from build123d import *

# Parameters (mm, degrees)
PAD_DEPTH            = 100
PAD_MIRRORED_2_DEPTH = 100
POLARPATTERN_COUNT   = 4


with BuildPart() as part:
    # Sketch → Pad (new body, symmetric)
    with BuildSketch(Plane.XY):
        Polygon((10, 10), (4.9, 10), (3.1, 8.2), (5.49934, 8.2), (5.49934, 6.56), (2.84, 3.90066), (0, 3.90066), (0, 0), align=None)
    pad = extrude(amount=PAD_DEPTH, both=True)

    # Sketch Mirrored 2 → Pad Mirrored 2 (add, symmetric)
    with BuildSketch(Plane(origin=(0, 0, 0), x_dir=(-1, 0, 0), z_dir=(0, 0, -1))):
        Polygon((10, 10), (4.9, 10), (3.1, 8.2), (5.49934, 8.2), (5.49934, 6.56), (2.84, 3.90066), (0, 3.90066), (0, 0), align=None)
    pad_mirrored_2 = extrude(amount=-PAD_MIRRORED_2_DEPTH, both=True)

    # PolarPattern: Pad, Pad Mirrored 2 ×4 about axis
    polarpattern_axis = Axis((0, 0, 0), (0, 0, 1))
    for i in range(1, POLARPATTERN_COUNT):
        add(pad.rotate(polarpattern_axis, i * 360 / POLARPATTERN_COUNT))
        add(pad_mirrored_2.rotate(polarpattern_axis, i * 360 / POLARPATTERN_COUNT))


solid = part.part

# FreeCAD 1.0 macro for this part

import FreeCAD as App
import Part
import Sketcher
from FreeCAD import Vector
Q = App.Units.Quantity

doc = App.newDocument("Part")
params = doc.addObject("Spreadsheet::Sheet", "Params")
for row, (alias, value) in enumerate([
    ("sketch1_width", "5.1 mm"),
    ("sketch1_width2", "2.84 mm"),
    ("sketch1_height", "1.64 mm"),
    ("pad1_length", "200 mm"),
    ("sketch2_width", "5.1 mm"),
    ("sketch2_width2", "2.84 mm"),
    ("sketch2_height", "1.64 mm"),
    ("pad2_length", "200 mm"),
], start=1):
    params.set(f"A{row}", alias)
    params.set(f"B{row}", "=" + value)
    params.setAlias(f"B{row}", alias)

body = doc.addObject("PartDesign::Body", "Body")

# Sketch on XY plane
sketch1 = body.newObject("Sketcher::SketchObject", "Sketch")
sketch1.AttachmentSupport = (doc.getObject("XY_Plane"), [""])
sketch1.MapMode = "FlatFace"
sketch1.addGeometry([
    Part.LineSegment(Vector(10, 10, 0), Vector(4.9, 10, 0)),  # 0
    Part.LineSegment(Vector(4.9, 10, 0), Vector(3.1, 8.2, 0)),  # 1
    Part.LineSegment(Vector(3.1, 8.2, 0), Vector(5.5, 8.2, 0)),  # 2
    Part.LineSegment(Vector(5.5, 8.2, 0), Vector(5.5, 6.6, 0)),  # 3
    Part.LineSegment(Vector(5.5, 6.6, 0), Vector(2.8, 3.9, 0)),  # 4
    Part.LineSegment(Vector(2.8, 3.9, 0), Vector(0, 3.9, 0)),  # 5
    Part.LineSegment(Vector(0, 3.9, 0), Vector(0, 0, 0)),  # 6
    Part.LineSegment(Vector(0, 0, 0), Vector(10, 10, 0)),  # 7
], False)
sketch1.addConstraint([
    Sketcher.Constraint("Coincident", 0, 2, 1, 1),
    Sketcher.Constraint("Coincident", 1, 2, 2, 1),
    Sketcher.Constraint("Coincident", 2, 2, 3, 1),
    Sketcher.Constraint("Coincident", 3, 2, 4, 1),
    Sketcher.Constraint("Coincident", 4, 2, 5, 1),
    Sketcher.Constraint("Coincident", 5, 2, 6, 1),
    Sketcher.Constraint("Coincident", 6, 2, 7, 1),
    Sketcher.Constraint("Coincident", 7, 2, 0, 1),
    Sketcher.Constraint("Horizontal", 0),
    Sketcher.Constraint("Horizontal", 2),
    Sketcher.Constraint("Vertical", 3),
    Sketcher.Constraint("Horizontal", 5),
    Sketcher.Constraint("Vertical", 6),
    Sketcher.Constraint("Coincident", 6, 2, -1, 1),
    Sketcher.Constraint("Parallel", 1, 4),
    Sketcher.Constraint("Parallel", 4, 7),
    Sketcher.Constraint("Angle", 1, Q("-135 deg")),
    Sketcher.Constraint("DistanceX", 0, 2, 0, 1, Q("5.1 mm")),
    Sketcher.Constraint("DistanceY", -1, 1, 0, 2, Q("10 mm")),
    Sketcher.Constraint("DistanceX", 5, 2, 5, 1, Q("2.84 mm")),
    Sketcher.Constraint("DistanceY", 3, 2, 3, 1, Q("1.64 mm")),
    Sketcher.Constraint("DistanceX", -1, 1, 1, 2, Q("3.1 mm")),
    Sketcher.Constraint("DistanceX", 2, 1, 2, 2, Q("2.39934 mm")),
])
sketch1.setExpression("Constraints[17]", "Params.sketch1_width")
sketch1.setExpression("Constraints[19]", "Params.sketch1_width2")
sketch1.setExpression("Constraints[20]", "Params.sketch1_height")
pad1 = body.newObject("PartDesign::Pad", "Pad")
pad1.Profile = sketch1
pad1.setExpression("Length", "Params.pad1_length")
pad1.Midplane = True

# Sketch on XY plane
sketch2 = body.newObject("Sketcher::SketchObject", "Sketch001")
sketch2.AttachmentSupport = (doc.getObject("XY_Plane"), [""])
sketch2.MapMode = "FlatFace"
sketch2.addGeometry([
    Part.LineSegment(Vector(-10, 10, 0), Vector(-4.9, 10, 0)),  # 0
    Part.LineSegment(Vector(-4.9, 10, 0), Vector(-3.1, 8.2, 0)),  # 1
    Part.LineSegment(Vector(-3.1, 8.2, 0), Vector(-5.5, 8.2, 0)),  # 2
    Part.LineSegment(Vector(-5.5, 8.2, 0), Vector(-5.5, 6.6, 0)),  # 3
    Part.LineSegment(Vector(-5.5, 6.6, 0), Vector(-2.8, 3.9, 0)),  # 4
    Part.LineSegment(Vector(-2.8, 3.9, 0), Vector(0, 3.9, 0)),  # 5
    Part.LineSegment(Vector(0, 3.9, 0), Vector(0, 0, 0)),  # 6
    Part.LineSegment(Vector(0, 0, 0), Vector(-10, 10, 0)),  # 7
], False)
sketch2.addConstraint([
    Sketcher.Constraint("Coincident", 0, 2, 1, 1),
    Sketcher.Constraint("Coincident", 1, 2, 2, 1),
    Sketcher.Constraint("Coincident", 2, 2, 3, 1),
    Sketcher.Constraint("Coincident", 3, 2, 4, 1),
    Sketcher.Constraint("Coincident", 4, 2, 5, 1),
    Sketcher.Constraint("Coincident", 5, 2, 6, 1),
    Sketcher.Constraint("Coincident", 6, 2, 7, 1),
    Sketcher.Constraint("Coincident", 7, 2, 0, 1),
    Sketcher.Constraint("Horizontal", 0),
    Sketcher.Constraint("Horizontal", 2),
    Sketcher.Constraint("Vertical", 3),
    Sketcher.Constraint("Horizontal", 5),
    Sketcher.Constraint("Vertical", 6),
    Sketcher.Constraint("Coincident", 6, 2, -1, 1),
    Sketcher.Constraint("Parallel", 1, 4),
    Sketcher.Constraint("Parallel", 4, 7),
    Sketcher.Constraint("Angle", 1, Q("-45 deg")),
    Sketcher.Constraint("DistanceX", 0, 1, 0, 2, Q("5.1 mm")),
    Sketcher.Constraint("DistanceY", -1, 1, 0, 2, Q("10 mm")),
    Sketcher.Constraint("DistanceX", 5, 1, 5, 2, Q("2.84 mm")),
    Sketcher.Constraint("DistanceY", 3, 2, 3, 1, Q("1.64 mm")),
    Sketcher.Constraint("DistanceX", 1, 2, -1, 1, Q("3.1 mm")),
    Sketcher.Constraint("DistanceX", 2, 2, 2, 1, Q("2.39934 mm")),
])
sketch2.setExpression("Constraints[17]", "Params.sketch2_width")
sketch2.setExpression("Constraints[19]", "Params.sketch2_width2")
sketch2.setExpression("Constraints[20]", "Params.sketch2_height")
pad2 = body.newObject("PartDesign::Pad", "Pad001")
pad2.Profile = sketch2
pad2.setExpression("Length", "Params.pad2_length")
pad2.Midplane = True
doc.recompute()

polarpattern = body.newObject("PartDesign::PolarPattern", "PolarPattern")
polarpattern.Originals = [pad1, pad2]
polarpattern.Axis = (doc.getObject("Z_Axis"), [""])
polarpattern.Angle = 360
polarpattern.Occurrences = 4
body.Tip = polarpattern

doc.recompute()
